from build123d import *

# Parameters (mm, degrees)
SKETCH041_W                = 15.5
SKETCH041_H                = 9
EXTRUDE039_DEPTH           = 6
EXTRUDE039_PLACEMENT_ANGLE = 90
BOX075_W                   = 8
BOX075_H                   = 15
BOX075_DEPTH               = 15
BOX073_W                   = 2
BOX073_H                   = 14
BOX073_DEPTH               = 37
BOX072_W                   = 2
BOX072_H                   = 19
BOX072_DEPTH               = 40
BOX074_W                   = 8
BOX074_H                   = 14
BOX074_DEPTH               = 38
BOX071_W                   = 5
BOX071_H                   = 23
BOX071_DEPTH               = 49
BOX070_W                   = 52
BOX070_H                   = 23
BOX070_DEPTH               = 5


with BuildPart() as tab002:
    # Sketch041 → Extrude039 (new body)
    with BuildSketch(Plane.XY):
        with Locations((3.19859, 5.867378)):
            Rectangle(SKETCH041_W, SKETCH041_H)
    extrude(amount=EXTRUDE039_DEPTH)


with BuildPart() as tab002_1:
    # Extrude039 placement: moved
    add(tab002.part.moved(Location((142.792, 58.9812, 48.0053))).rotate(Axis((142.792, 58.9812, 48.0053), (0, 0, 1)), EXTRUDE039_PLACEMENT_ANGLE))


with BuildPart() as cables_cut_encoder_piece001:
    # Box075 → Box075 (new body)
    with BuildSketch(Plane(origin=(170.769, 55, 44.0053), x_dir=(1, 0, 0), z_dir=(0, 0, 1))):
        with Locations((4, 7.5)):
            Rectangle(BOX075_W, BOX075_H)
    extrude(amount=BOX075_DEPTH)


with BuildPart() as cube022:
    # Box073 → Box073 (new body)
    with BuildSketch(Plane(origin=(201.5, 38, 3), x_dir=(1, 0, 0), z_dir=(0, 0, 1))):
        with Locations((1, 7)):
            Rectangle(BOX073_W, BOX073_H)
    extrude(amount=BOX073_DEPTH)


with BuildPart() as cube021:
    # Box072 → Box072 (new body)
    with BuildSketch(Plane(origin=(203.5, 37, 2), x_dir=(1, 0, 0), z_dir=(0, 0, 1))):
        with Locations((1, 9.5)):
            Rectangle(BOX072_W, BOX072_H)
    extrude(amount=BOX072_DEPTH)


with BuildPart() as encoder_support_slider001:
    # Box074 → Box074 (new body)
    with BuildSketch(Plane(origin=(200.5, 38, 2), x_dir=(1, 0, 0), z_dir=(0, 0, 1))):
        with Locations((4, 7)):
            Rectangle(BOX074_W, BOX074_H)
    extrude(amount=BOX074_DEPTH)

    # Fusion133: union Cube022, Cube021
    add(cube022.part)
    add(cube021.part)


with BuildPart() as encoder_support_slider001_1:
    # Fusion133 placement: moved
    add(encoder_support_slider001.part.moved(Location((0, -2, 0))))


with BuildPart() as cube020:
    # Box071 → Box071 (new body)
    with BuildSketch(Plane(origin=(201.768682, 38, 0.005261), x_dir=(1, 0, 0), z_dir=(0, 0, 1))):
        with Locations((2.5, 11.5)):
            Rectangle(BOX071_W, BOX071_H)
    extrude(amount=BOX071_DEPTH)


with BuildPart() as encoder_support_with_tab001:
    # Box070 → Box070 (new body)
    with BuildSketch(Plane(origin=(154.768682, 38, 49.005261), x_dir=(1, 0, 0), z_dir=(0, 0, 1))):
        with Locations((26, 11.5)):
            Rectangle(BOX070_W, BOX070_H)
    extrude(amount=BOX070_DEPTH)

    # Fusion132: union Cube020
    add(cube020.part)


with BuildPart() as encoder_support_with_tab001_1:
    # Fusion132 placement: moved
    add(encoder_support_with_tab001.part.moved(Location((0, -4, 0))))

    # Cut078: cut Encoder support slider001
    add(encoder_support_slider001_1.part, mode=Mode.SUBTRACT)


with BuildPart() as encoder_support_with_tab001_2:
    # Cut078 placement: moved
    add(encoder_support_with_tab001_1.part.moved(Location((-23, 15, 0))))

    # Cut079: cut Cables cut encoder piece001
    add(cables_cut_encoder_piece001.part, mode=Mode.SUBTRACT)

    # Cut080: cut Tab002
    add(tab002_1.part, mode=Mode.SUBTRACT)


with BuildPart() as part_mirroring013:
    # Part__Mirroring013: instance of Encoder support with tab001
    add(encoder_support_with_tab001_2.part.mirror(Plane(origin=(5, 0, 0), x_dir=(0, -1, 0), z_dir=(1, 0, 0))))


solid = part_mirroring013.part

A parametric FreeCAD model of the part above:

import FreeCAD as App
import Part
import Sketcher
from FreeCAD import Vector
Q = App.Units.Quantity

doc = App.newDocument("Part")
body = doc.addObject("PartDesign::Body", "Body")

# Sketch on XY plane
sketch1 = body.newObject("Sketcher::SketchObject", "Sketch")
sketch1.AttachmentSupport = (doc.getObject("XY_Plane"), [""])
sketch1.MapMode = "FlatFace"
sketch1.addGeometry(Part.LineSegment(Vector(-5, 10, 0), Vector(-5, 1, 0)), False)
sketch1.addGeometry(Part.LineSegment(Vector(-5, 1, 0), Vector(11, 1, 0)), False)
sketch1.addGeometry(Part.LineSegment(Vector(11, 1, 0), Vector(11, 10, 0)), False)
sketch1.addGeometry(Part.LineSegment(Vector(11, 10, 0), Vector(-5, 10, 0)), False)
sketch1.addConstraint(Sketcher.Constraint("Coincident", 0, 2, 1, 1))
sketch1.addConstraint(Sketcher.Constraint("Coincident", 1, 2, 2, 1))
sketch1.addConstraint(Sketcher.Constraint("Coincident", 2, 2, 3, 1))
sketch1.addConstraint(Sketcher.Constraint("Coincident", 3, 2, 0, 1))
sketch1.addConstraint(Sketcher.Constraint("Vertical", 0))
sketch1.addConstraint(Sketcher.Constraint("Horizontal", 1))
sketch1.addConstraint(Sketcher.Constraint("Vertical", 2))
sketch1.addConstraint(Sketcher.Constraint("Horizontal", 3))
sketch1.addConstraint(Sketcher.Constraint("DistanceY", 0, 2, 0, 1, Q("9 mm")))
sketch1.addConstraint(Sketcher.Constraint("DistanceX", 1, 1, 1, 2, Q("15.5 mm")))
sketch1.addConstraint(Sketcher.Constraint("DistanceX", 0, 2, -1, 1, Q("4.55141 mm")))
sketch1.addConstraint(Sketcher.Constraint("DistanceY", -1, 1, 0, 2, Q("1.367378 mm")))
pad1 = body.newObject("PartDesign::Pad", "Pad")
pad1.Profile = sketch1
pad1.Length = 6
body2 = doc.addObject("PartDesign::Body", "Body001")
doc.recompute()

body.Placement = App.Placement(Vector(142.792, 58.9812, 48.0053), App.Rotation(Vector(0, 0, 1), 90))
boolean = body2.newObject("PartDesign::Boolean", "Boolean")
boolean.Type = "Fuse"
boolean.addObjects([body])
body3 = doc.addObject("PartDesign::Body", "Body002")

# Sketch on XY plane
sketch2 = body3.newObject("Sketcher::SketchObject", "Sketch001")
sketch2.AttachmentSupport = (doc.getObject("XY_Plane002"), [""])
sketch2.MapMode = "FlatFace"
sketch2.AttachmentOffset = App.Placement(Vector(0, 0, 44.0053), App.Rotation())
sketch2.addGeometry(Part.LineSegment(Vector(171, 70, 0), Vector(171, 55, 0)), False)
sketch2.addGeometry(Part.LineSegment(Vector(171, 55, 0), Vector(179, 55, 0)), False)
sketch2.addGeometry(Part.LineSegment(Vector(179, 55, 0), Vector(179, 70, 0)), False)
sketch2.addGeometry(Part.LineSegment(Vector(179, 70, 0), Vector(171, 70, 0)), False)
sketch2.addConstraint(Sketcher.Constraint("Coincident", 0, 2, 1, 1))
sketch2.addConstraint(Sketcher.Constraint("Coincident", 1, 2, 2, 1))
sketch2.addConstraint(Sketcher.Constraint("Coincident", 2, 2, 3, 1))
sketch2.addConstraint(Sketcher.Constraint("Coincident", 3, 2, 0, 1))
sketch2.addConstraint(Sketcher.Constraint("Vertical", 0))
sketch2.addConstraint(Sketcher.Constraint("Horizontal", 1))
sketch2.addConstraint(Sketcher.Constraint("Vertical", 2))
sketch2.addConstraint(Sketcher.Constraint("Horizontal", 3))
sketch2.addConstraint(Sketcher.Constraint("DistanceX", 1, 1, 1, 2, Q("8 mm")))
sketch2.addConstraint(Sketcher.Constraint("DistanceY", 0, 2, 0, 1, Q("15 mm")))
sketch2.addConstraint(Sketcher.Constraint("DistanceY", -1, 1, 0, 2, Q("55 mm")))
sketch2.addConstraint(Sketcher.Constraint("DistanceX", -1, 1, 0, 2, Q("170.769 mm")))
pad2 = body3.newObject("PartDesign::Pad", "Pad001")
pad2.Profile = sketch2
pad2.Length = 15
body4 = doc.addObject("PartDesign::Body", "Body003")

# Sketch on XY plane
sketch3 = body4.newObject("Sketcher::SketchObject", "Sketch002")
sketch3.AttachmentSupport = (doc.getObject("XY_Plane003"), [""])
sketch3.MapMode = "FlatFace"
sketch3.AttachmentOffset = App.Placement(Vector(0, 0, 3), App.Rotation())
sketch3.addGeometry(Part.LineSegment(Vector(201.5, 52, 0), Vector(201.5, 38, 0)), False)
sketch3.addGeometry(Part.LineSegment(Vector(201.5, 38, 0), Vector(203.5, 38, 0)), False)
sketch3.addGeometry(Part.LineSegment(Vector(203.5, 38, 0), Vector(203.5, 52, 0)), False)
sketch3.addGeometry(Part.LineSegment(Vector(203.5, 52, 0), Vector(201.5, 52, 0)), False)
sketch3.addConstraint(Sketcher.Constraint("Coincident", 0, 2, 1, 1))
sketch3.addConstraint(Sketcher.Constraint("Coincident", 1, 2, 2, 1))
sketch3.addConstraint(Sketcher.Constraint("Coincident", 2, 2, 3, 1))
sketch3.addConstraint(Sketcher.Constraint("Coincident", 3, 2, 0, 1))
sketch3.addConstraint(Sketcher.Constraint("Vertical", 0))
sketch3.addConstraint(Sketcher.Constraint("Horizontal", 1))
sketch3.addConstraint(Sketcher.Constraint("Vertical", 2))
sketch3.addConstraint(Sketcher.Constraint("Horizontal", 3))
sketch3.addConstraint(Sketcher.Constraint("DistanceX", 1, 1, 1, 2, Q("2 mm")))
sketch3.addConstraint(Sketcher.Constraint("DistanceY", 0, 2, 0, 1, Q("14 mm")))
sketch3.addConstraint(Sketcher.Constraint("DistanceY", -1, 1, 0, 2, Q("38 mm")))
sketch3.addConstraint(Sketcher.Constraint("DistanceX", -1, 1, 0, 2, Q("201.5 mm")))
pad3 = body4.newObject("PartDesign::Pad", "Pad002")
pad3.Profile = sketch3
pad3.Length = 37
body5 = doc.addObject("PartDesign::Body", "Body004")

# Sketch on XY plane
sketch4 = body5.newObject("Sketcher::SketchObject", "Sketch003")
sketch4.AttachmentSupport = (doc.getObject("XY_Plane004"), [""])
sketch4.MapMode = "FlatFace"
sketch4.AttachmentOffset = App.Placement(Vector(0, 0, 2), App.Rotation())
sketch4.addGeometry(Part.LineSegment(Vector(203.5, 56, 0), Vector(203.5, 37, 0)), False)
sketch4.addGeometry(Part.LineSegment(Vector(203.5, 37, 0), Vector(205.5, 37, 0)), False)
sketch4.addGeometry(Part.LineSegment(Vector(205.5, 37, 0), Vector(205.5, 56, 0)), False)
sketch4.addGeometry(Part.LineSegment(Vector(205.5, 56, 0), Vector(203.5, 56, 0)), False)
sketch4.addConstraint(Sketcher.Constraint("Coincident", 0, 2, 1, 1))
sketch4.addConstraint(Sketcher.Constraint("Coincident", 1, 2, 2, 1))
sketch4.addConstraint(Sketcher.Constraint("Coincident", 2, 2, 3, 1))
sketch4.addConstraint(Sketcher.Constraint("Coincident", 3, 2, 0, 1))
sketch4.addConstraint(Sketcher.Constraint("Vertical", 0))
sketch4.addConstraint(Sketcher.Constraint("Horizontal", 1))
sketch4.addConstraint(Sketcher.Constraint("Vertical", 2))
sketch4.addConstraint(Sketcher.Constraint("Horizontal", 3))
sketch4.addConstraint(Sketcher.Constraint("DistanceX", 1, 1, 1, 2, Q("2 mm")))
sketch4.addConstraint(Sketcher.Constraint("DistanceY", 0, 2, 0, 1, Q("19 mm")))
sketch4.addConstraint(Sketcher.Constraint("DistanceY", -1, 1, 0, 2, Q("37 mm")))
sketch4.addConstraint(Sketcher.Constraint("DistanceX", -1, 1, 0, 2, Q("203.5 mm")))
pad4 = body5.newObject("PartDesign::Pad", "Pad003")
pad4.Profile = sketch4
pad4.Length = 40
body6 = doc.addObject("PartDesign::Body", "Body005")

# Sketch on XY plane
sketch5 = body6.newObject("Sketcher::SketchObject", "Sketch004")
sketch5.AttachmentSupport = (doc.getObject("XY_Plane005"), [""])
sketch5.MapMode = "FlatFace"
sketch5.AttachmentOffset = App.Placement(Vector(0, 0, 2), App.Rotation())
sketch5.addGeometry(Part.LineSegment(Vector(200, 52, 0), Vector(200, 38, 0)), False)
sketch5.addGeometry(Part.LineSegment(Vector(200, 38, 0), Vector(208, 38, 0)), False)
sketch5.addGeometry(Part.LineSegment(Vector(208, 38, 0), Vector(208, 52, 0)), False)
sketch5.addGeometry(Part.LineSegment(Vector(208, 52, 0), Vector(200, 52, 0)), False)
sketch5.addConstraint(Sketcher.Constraint("Coincident", 0, 2, 1, 1))
sketch5.addConstraint(Sketcher.Constraint("Coincident", 1, 2, 2, 1))
sketch5.addConstraint(Sketcher.Constraint("Coincident", 2, 2, 3, 1))
sketch5.addConstraint(Sketcher.Constraint("Coincident", 3, 2, 0, 1))
sketch5.addConstraint(Sketcher.Constraint("Vertical", 0))
sketch5.addConstraint(Sketcher.Constraint("Horizontal", 1))
sketch5.addConstraint(Sketcher.Constraint("Vertical", 2))
sketch5.addConstraint(Sketcher.Constraint("Horizontal", 3))
sketch5.addConstraint(Sketcher.Constraint("DistanceX", 1, 1, 1, 2, Q("8 mm")))
sketch5.addConstraint(Sketcher.Constraint("DistanceY", 0, 2, 0, 1, Q("14 mm")))
sketch5.addConstraint(Sketcher.Constraint("DistanceY", -1, 1, 0, 2, Q("38 mm")))
sketch5.addConstraint(Sketcher.Constraint("DistanceX", -1, 1, 0, 2, Q("200.5 mm")))
pad5 = body6.newObject("PartDesign::Pad", "Pad004")
pad5.Profile = sketch5
pad5.Length = 38
doc.recompute()

boolean2 = body6.newObject("PartDesign::Boolean", "Boolean001")
boolean2.Type = "Fuse"
boolean2.addObjects([body4])
doc.recompute()

boolean3 = body6.newObject("PartDesign::Boolean", "Boolean002")
boolean3.Type = "Fuse"
boolean3.addObjects([body5])
body7 = doc.addObject("PartDesign::Body", "Body006")
doc.recompute()

body6.Placement = App.Placement(Vector(0, -2, 0), App.Rotation(Vector(0, 0, 1), 0))
boolean4 = body7.newObject("PartDesign::Boolean", "Boolean003")
boolean4.Type = "Fuse"
boolean4.addObjects([body6])
body8 = doc.addObject("PartDesign::Body", "Body007")

# Sketch on XY plane
sketch6 = body8.newObject("Sketcher::SketchObject", "Sketch005")
sketch6.AttachmentSupport = (doc.getObject("XY_Plane007"), [""])
sketch6.MapMode = "FlatFace"
sketch6.AttachmentOffset = App.Placement(Vector(0, 0, 0.005261), App.Rotation())
sketch6.addGeometry(Part.LineSegment(Vector(202, 61, 0), Vector(202, 38, 0)), False)
sketch6.addGeometry(Part.LineSegment(Vector(202, 38, 0), Vector(207, 38, 0)), False)
sketch6.addGeometry(Part.LineSegment(Vector(207, 38, 0), Vector(207, 61, 0)), False)
sketch6.addGeometry(Part.LineSegment(Vector(207, 61, 0), Vector(202, 61, 0)), False)
sketch6.addConstraint(Sketcher.Constraint("Coincident", 0, 2, 1, 1))
sketch6.addConstraint(Sketcher.Constraint("Coincident", 1, 2, 2, 1))
sketch6.addConstraint(Sketcher.Constraint("Coincident", 2, 2, 3, 1))
sketch6.addConstraint(Sketcher.Constraint("Coincident", 3, 2, 0, 1))
sketch6.addConstraint(Sketcher.Constraint("Vertical", 0))
sketch6.addConstraint(Sketcher.Constraint("Horizontal", 1))
sketch6.addConstraint(Sketcher.Constraint("Vertical", 2))
sketch6.addConstraint(Sketcher.Constraint("Horizontal", 3))
sketch6.addConstraint(Sketcher.Constraint("DistanceX", 1, 1, 1, 2, Q("5 mm")))
sketch6.addConstraint(Sketcher.Constraint("DistanceY", 0, 2, 0, 1, Q("23 mm")))
sketch6.addConstraint(Sketcher.Constraint("DistanceY", -1, 1, 0, 2, Q("38 mm")))
sketch6.addConstraint(Sketcher.Constraint("DistanceX", -1, 1, 0, 2, Q("201.768682 mm")))
pad6 = body8.newObject("PartDesign::Pad", "Pad005")
pad6.Profile = sketch6
pad6.Length = 49
body9 = doc.addObject("PartDesign::Body", "Body008")

# Sketch on XY plane
sketch7 = body9.newObject("Sketcher::SketchObject", "Sketch006")
sketch7.AttachmentSupport = (doc.getObject("XY_Plane008"), [""])
sketch7.MapMode = "FlatFace"
sketch7.AttachmentOffset = App.Placement(Vector(0, 0, 49.005261), App.Rotation())
sketch7.addGeometry(Part.LineSegment(Vector(155, 61, 0), Vector(155, 38, 0)), False)
sketch7.addGeometry(Part.LineSegment(Vector(155, 38, 0), Vector(207, 38, 0)), False)
sketch7.addGeometry(Part.LineSegment(Vector(207, 38, 0), Vector(207, 61, 0)), False)
sketch7.addGeometry(Part.LineSegment(Vector(207, 61, 0), Vector(155, 61, 0)), False)
sketch7.addConstraint(Sketcher.Constraint("Coincident", 0, 2, 1, 1))
sketch7.addConstraint(Sketcher.Constraint("Coincident", 1, 2, 2, 1))
sketch7.addConstraint(Sketcher.Constraint("Coincident", 2, 2, 3, 1))
sketch7.addConstraint(Sketcher.Constraint("Coincident", 3, 2, 0, 1))
sketch7.addConstraint(Sketcher.Constraint("Vertical", 0))
sketch7.addConstraint(Sketcher.Constraint("Horizontal", 1))
sketch7.addConstraint(Sketcher.Constraint("Vertical", 2))
sketch7.addConstraint(Sketcher.Constraint("Horizontal", 3))
sketch7.addConstraint(Sketcher.Constraint("DistanceX", 1, 1, 1, 2, Q("52 mm")))
sketch7.addConstraint(Sketcher.Constraint("DistanceY", 0, 2, 0, 1, Q("23 mm")))
sketch7.addConstraint(Sketcher.Constraint("DistanceY", -1, 1, 0, 2, Q("38 mm")))
sketch7.addConstraint(Sketcher.Constraint("DistanceX", -1, 1, 0, 2, Q("154.768682 mm")))
pad7 = body9.newObject("PartDesign::Pad", "Pad006")
pad7.Profile = sketch7
pad7.Length = 5
doc.recompute()

boolean5 = body9.newObject("PartDesign::Boolean", "Boolean004")
boolean5.Type = "Fuse"
boolean5.addObjects([body8])
body10 = doc.addObject("PartDesign::Body", "Body009")
doc.recompute()

body9.Placement = App.Placement(Vector(0, -4, 0), App.Rotation(Vector(0, 0, 1), 0))
boolean6 = body10.newObject("PartDesign::Boolean", "Boolean005")
boolean6.Type = "Fuse"
boolean6.addObjects([body9])
doc.recompute()

boolean7 = body10.newObject("PartDesign::Boolean", "Boolean006")
boolean7.Type = "Cut"
boolean7.addObjects([body7])
body11 = doc.addObject("PartDesign::Body", "Body010")
doc.recompute()

body10.Placement = App.Placement(Vector(-23, 15, 0), App.Rotation(Vector(0, 0, 1), 0))
boolean8 = body11.newObject("PartDesign::Boolean", "Boolean007")
boolean8.Type = "Fuse"
boolean8.addObjects([body10])
doc.recompute()

boolean9 = body11.newObject("PartDesign::Boolean", "Boolean008")
boolean9.Type = "Cut"
boolean9.addObjects([body3])
doc.recompute()

boolean10 = body11.newObject("PartDesign::Boolean", "Boolean009")
boolean10.Type = "Cut"
boolean10.addObjects([body2])
body12 = doc.addObject("PartDesign::Body", "Body011")
doc.recompute()

mirroring = doc.addObject("Part::Mirroring", "Mirroring")
mirroring.Source = body11
mirroring.Base = Vector(5, 0, 0)
mirroring.Normal = Vector(1, 0, 0)
body12.BaseFeature = mirroring
doc.recompute()
body11.Visibility = False
mirroring.Visibility = False

doc.recompute()
